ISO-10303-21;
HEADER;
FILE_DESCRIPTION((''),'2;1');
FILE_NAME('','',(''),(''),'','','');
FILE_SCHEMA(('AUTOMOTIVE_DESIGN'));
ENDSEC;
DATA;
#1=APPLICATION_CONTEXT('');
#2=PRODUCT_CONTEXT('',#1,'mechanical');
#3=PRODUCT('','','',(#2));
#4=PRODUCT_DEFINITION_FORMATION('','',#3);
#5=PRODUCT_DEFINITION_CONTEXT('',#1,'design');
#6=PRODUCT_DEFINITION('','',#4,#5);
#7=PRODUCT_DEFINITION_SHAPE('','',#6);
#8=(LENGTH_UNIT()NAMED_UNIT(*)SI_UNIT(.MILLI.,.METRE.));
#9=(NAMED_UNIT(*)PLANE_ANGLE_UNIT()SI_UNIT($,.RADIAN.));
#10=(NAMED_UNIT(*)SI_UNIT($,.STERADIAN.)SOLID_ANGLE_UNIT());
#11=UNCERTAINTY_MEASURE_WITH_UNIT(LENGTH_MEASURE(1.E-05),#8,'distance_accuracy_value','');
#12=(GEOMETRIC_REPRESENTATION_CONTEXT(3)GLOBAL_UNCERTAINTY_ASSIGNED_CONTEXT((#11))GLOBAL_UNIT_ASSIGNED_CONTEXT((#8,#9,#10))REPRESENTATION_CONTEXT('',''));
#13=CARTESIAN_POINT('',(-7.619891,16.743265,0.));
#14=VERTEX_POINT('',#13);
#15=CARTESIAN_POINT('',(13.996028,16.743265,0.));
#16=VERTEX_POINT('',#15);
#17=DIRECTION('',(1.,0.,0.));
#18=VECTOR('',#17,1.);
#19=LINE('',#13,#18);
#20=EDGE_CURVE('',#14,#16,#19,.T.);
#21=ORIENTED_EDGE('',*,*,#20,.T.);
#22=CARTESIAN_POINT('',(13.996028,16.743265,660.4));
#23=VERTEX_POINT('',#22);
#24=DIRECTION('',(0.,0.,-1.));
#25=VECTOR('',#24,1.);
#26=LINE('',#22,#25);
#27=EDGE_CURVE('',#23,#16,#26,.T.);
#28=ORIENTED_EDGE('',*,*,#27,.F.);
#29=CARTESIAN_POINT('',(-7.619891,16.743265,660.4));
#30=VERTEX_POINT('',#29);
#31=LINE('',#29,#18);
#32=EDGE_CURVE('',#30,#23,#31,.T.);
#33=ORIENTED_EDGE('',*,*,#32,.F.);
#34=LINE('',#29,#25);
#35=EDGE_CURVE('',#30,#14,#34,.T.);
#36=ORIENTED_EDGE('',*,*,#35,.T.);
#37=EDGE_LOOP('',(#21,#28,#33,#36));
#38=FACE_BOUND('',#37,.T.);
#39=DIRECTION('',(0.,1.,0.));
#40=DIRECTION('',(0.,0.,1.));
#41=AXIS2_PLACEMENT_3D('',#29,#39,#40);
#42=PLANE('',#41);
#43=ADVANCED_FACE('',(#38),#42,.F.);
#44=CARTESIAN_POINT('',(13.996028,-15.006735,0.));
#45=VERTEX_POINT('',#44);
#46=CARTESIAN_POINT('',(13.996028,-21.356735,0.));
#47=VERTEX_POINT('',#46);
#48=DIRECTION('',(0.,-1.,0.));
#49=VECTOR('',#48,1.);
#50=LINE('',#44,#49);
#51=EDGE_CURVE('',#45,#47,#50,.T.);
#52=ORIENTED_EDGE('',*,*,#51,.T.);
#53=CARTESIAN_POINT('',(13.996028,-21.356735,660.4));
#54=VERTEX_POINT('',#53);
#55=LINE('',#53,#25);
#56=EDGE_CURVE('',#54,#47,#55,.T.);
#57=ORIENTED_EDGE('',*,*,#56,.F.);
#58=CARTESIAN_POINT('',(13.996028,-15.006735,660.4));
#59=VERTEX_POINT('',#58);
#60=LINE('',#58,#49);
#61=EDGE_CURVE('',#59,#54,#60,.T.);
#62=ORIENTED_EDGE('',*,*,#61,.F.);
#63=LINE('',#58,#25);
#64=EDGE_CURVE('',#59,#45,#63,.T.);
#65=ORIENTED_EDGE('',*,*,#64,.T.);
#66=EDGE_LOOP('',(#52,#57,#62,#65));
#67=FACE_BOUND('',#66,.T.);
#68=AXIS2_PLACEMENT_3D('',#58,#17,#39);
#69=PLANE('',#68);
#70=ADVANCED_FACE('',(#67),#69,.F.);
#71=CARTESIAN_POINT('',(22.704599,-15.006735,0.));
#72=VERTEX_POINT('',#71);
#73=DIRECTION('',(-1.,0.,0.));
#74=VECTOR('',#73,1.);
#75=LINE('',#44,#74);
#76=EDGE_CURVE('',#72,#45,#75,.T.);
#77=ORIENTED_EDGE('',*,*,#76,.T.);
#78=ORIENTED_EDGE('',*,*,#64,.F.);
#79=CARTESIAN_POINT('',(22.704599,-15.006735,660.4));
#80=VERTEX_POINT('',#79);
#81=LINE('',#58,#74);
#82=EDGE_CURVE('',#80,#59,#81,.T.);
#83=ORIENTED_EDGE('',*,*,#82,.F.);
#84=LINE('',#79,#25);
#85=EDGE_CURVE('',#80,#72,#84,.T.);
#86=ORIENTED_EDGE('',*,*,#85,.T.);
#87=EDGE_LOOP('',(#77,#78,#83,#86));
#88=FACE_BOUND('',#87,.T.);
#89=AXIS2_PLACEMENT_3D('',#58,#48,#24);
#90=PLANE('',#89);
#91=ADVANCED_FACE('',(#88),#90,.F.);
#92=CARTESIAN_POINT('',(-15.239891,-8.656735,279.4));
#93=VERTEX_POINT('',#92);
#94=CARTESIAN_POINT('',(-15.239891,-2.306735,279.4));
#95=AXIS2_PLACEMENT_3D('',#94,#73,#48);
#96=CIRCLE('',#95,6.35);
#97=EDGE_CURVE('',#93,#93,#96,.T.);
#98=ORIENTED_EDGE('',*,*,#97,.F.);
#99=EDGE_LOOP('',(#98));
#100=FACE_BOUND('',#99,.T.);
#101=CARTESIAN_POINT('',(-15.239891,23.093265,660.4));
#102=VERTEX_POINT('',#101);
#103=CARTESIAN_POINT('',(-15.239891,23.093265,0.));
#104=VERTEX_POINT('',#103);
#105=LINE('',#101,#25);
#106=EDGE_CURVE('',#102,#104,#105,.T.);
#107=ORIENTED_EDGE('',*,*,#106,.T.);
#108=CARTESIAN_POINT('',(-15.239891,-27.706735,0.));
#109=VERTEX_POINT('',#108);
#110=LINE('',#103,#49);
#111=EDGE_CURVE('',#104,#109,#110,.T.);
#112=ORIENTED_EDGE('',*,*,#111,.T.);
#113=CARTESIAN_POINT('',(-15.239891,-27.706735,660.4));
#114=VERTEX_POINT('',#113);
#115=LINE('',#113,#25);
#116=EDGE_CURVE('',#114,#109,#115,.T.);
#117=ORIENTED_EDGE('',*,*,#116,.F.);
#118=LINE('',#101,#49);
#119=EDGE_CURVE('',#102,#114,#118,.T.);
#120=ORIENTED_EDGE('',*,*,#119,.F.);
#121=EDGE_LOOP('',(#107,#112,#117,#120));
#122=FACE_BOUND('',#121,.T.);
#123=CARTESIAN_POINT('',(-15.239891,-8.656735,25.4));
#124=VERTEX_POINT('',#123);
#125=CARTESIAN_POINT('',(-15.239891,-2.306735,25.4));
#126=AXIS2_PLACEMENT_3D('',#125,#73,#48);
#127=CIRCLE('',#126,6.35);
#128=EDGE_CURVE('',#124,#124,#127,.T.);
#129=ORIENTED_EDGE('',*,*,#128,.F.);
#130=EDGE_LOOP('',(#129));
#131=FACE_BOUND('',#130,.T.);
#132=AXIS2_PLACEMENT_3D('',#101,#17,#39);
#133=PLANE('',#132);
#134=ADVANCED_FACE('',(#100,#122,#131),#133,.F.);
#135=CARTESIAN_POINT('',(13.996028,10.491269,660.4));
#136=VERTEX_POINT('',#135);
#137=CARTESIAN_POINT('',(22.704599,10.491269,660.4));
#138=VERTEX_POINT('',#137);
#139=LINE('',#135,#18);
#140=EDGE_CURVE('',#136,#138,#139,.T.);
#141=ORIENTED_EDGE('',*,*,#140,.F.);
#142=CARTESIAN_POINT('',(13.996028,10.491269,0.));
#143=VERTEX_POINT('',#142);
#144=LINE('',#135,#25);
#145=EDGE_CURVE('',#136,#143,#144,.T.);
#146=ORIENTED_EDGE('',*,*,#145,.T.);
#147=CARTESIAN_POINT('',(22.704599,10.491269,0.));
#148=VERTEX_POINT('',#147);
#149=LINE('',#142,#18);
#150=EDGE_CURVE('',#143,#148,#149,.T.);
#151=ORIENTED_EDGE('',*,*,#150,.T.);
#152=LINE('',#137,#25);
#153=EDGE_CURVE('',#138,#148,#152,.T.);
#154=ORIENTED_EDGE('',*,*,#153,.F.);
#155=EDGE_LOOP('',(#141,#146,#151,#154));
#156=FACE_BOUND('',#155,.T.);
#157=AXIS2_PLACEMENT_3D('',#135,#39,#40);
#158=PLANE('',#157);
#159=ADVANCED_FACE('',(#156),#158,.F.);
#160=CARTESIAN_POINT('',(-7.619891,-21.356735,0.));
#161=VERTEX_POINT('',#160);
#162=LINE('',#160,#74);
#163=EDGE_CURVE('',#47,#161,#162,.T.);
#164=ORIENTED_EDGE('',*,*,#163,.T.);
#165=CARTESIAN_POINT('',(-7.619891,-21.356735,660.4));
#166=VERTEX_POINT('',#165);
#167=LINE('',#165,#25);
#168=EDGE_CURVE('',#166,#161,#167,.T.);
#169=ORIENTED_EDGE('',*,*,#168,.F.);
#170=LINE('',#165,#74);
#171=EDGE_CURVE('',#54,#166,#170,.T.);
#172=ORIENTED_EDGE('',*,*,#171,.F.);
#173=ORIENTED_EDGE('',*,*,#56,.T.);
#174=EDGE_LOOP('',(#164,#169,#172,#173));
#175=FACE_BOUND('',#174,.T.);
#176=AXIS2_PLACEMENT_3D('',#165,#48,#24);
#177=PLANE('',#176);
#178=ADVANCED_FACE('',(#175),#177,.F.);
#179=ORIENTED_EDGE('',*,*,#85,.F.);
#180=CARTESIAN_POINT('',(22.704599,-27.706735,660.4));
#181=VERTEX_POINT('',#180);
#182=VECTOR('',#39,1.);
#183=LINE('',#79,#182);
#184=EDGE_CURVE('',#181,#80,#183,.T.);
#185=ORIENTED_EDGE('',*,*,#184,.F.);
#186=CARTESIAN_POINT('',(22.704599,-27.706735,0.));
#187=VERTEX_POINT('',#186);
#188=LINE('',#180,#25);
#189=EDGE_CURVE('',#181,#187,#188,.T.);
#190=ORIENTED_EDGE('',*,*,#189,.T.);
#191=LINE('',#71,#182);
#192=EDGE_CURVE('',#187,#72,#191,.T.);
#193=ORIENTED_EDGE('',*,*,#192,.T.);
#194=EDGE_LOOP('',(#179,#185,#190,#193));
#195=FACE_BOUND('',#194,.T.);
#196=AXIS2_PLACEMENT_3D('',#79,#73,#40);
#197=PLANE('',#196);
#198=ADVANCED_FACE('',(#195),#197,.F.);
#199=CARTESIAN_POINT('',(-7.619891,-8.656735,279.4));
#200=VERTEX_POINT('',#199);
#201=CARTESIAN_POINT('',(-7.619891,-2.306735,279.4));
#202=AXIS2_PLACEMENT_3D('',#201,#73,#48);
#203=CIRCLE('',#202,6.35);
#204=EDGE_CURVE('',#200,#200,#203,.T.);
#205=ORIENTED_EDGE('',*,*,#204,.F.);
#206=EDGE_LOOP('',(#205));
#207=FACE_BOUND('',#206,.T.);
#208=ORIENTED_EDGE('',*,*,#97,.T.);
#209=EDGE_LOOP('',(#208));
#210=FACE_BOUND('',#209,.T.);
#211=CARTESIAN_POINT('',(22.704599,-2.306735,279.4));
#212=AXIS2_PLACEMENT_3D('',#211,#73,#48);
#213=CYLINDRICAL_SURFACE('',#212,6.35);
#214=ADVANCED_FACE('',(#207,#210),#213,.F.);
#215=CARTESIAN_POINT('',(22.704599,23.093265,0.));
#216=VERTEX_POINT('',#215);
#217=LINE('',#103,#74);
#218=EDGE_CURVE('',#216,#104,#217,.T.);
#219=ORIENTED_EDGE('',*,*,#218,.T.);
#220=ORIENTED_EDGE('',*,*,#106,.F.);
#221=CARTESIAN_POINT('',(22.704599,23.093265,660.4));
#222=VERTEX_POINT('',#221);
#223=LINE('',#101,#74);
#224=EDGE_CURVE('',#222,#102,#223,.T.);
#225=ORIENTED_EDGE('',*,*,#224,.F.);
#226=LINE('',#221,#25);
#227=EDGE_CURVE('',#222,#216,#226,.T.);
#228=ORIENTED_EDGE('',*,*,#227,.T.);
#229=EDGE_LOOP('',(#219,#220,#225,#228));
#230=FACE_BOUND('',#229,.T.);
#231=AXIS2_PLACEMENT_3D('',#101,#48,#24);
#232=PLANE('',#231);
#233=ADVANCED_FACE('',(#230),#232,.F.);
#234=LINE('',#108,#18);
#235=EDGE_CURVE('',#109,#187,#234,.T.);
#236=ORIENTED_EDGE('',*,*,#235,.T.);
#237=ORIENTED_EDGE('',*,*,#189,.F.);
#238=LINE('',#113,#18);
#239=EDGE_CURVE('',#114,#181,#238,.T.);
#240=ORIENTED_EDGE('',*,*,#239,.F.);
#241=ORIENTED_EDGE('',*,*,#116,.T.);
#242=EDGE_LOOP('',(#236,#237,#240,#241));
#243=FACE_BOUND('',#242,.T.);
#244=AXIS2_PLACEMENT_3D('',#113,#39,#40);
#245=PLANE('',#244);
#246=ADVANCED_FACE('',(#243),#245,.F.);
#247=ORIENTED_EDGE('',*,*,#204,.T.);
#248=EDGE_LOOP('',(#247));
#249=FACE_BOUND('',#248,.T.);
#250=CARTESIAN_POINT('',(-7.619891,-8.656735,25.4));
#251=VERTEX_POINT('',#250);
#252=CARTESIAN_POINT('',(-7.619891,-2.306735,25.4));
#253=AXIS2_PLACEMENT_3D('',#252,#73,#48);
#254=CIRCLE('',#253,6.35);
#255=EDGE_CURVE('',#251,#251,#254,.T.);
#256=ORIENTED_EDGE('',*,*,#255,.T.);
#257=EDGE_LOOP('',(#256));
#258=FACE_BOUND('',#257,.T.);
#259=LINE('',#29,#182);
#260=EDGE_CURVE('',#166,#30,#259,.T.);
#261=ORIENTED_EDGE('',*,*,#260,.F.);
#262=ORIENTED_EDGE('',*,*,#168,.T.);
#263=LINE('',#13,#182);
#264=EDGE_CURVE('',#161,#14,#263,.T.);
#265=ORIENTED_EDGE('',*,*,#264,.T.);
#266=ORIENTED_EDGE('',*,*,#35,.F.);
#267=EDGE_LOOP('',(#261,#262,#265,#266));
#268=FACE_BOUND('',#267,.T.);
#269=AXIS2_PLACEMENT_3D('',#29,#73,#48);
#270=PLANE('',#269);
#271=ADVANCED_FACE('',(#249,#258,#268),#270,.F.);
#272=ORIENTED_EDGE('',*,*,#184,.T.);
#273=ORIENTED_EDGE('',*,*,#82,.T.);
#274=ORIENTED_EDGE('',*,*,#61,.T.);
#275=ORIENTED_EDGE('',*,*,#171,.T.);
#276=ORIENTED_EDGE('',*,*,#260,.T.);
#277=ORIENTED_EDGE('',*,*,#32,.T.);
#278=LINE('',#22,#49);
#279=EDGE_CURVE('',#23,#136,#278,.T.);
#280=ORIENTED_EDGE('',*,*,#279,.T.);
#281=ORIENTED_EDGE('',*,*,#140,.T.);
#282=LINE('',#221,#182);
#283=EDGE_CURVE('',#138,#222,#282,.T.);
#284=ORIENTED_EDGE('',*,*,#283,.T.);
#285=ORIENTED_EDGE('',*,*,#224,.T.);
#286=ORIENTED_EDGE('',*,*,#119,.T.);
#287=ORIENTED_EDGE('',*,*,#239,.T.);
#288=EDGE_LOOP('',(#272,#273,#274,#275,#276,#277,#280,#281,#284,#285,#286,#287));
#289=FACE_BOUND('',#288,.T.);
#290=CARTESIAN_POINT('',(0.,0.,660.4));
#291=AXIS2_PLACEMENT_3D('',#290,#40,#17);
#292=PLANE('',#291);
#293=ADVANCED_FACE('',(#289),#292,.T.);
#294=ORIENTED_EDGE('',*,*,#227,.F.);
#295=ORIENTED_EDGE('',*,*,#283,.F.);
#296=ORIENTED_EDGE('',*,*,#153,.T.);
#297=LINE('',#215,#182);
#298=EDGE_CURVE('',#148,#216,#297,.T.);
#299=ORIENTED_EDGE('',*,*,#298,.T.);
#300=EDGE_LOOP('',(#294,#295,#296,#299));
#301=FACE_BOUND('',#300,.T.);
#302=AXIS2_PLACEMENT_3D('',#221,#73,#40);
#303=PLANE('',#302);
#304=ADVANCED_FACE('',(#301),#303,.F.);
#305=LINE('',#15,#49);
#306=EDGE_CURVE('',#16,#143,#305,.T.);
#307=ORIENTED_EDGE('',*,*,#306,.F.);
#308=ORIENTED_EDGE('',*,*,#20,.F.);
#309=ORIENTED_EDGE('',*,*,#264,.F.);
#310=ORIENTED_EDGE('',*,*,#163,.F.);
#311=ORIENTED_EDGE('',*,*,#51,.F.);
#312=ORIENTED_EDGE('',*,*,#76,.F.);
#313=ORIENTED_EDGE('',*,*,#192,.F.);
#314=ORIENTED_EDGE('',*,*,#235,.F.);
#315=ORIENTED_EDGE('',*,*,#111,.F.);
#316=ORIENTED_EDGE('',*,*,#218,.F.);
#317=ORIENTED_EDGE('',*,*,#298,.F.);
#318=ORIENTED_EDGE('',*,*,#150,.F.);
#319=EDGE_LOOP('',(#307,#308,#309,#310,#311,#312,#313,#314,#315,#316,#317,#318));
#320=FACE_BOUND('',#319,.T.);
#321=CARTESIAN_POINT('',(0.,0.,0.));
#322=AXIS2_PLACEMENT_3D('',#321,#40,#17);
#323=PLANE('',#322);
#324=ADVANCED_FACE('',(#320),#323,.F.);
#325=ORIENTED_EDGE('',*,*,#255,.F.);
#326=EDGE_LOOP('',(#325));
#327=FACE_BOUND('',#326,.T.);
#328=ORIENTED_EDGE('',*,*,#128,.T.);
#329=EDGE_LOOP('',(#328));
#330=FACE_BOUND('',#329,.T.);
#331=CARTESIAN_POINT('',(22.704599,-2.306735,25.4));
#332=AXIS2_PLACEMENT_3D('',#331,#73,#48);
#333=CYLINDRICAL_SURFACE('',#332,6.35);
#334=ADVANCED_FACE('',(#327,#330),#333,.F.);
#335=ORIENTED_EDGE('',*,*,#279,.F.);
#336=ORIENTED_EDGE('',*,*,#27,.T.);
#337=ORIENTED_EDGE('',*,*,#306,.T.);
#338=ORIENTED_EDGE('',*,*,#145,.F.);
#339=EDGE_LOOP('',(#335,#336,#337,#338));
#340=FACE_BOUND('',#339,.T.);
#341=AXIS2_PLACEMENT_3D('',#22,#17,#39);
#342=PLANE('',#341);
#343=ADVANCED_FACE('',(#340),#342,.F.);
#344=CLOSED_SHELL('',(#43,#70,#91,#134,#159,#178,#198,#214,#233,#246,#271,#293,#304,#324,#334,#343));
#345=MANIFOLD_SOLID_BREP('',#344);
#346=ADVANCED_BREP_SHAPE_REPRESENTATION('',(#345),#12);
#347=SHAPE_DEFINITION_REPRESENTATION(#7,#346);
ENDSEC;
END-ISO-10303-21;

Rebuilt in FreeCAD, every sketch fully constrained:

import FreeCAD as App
import Part
import Sketcher
from FreeCAD import Vector
Q = App.Units.Quantity


def add_polygon(sketch, points):
    """Adds a closed chain of lines whose ends are joined by coincident constraints."""
    first, n = sketch.GeometryCount, len(points)
    for a, b in zip(points, points[1:] + points[:1]):
        sketch.addGeometry(Part.LineSegment(App.Vector(*a, 0), App.Vector(*b, 0)), False)
    for i in range(n):
        sketch.addConstraint(Sketcher.Constraint("Coincident", first + i, 2, first + (i + 1) % n, 1))

doc = App.newDocument("Part")
body = doc.addObject("PartDesign::Body", "Body")

sketch1 = doc.addObject("Sketcher::SketchObject", "Sketch")
body.addObject(sketch1)
sketch1.AttachmentSupport = (doc.XY_Plane, [""])
sketch1.MapMode = "FlatFace"
add_polygon(sketch1, [(14, 10), (23, 10), (23, 23), (-15, 23), (-15, -28), (23, -28), (23, -15), (14, -15), (14, -21), (-8, -21), (-8, 17), (14, 17)])
sketch1.addConstraint([
    Sketcher.Constraint("Horizontal", 0),
    Sketcher.Constraint("Vertical", 1),
    Sketcher.Constraint("Horizontal", 2),
    Sketcher.Constraint("Vertical", 3),
    Sketcher.Constraint("Horizontal", 4),
    Sketcher.Constraint("Vertical", 5),
    Sketcher.Constraint("Horizontal", 6),
    Sketcher.Constraint("Vertical", 7),
    Sketcher.Constraint("Horizontal", 8),
    Sketcher.Constraint("Vertical", 9),
    Sketcher.Constraint("Horizontal", 10),
    Sketcher.Constraint("Vertical", 11),
    Sketcher.Constraint("Vertical", 1, 2, 4, 2),
    Sketcher.Constraint("Vertical", 7, 2, 10, 2),
    Sketcher.Constraint("DistanceY", 3, 2, 3, 1, Q("2 in")),
    Sketcher.Constraint("DistanceY", 5, 1, 5, 2, Q("0.5 in")),
    Sketcher.Constraint("DistanceY", 9, 1, 9, 2, Q("1.5 in")),
    Sketcher.Constraint("DistanceY", 7, 2, 7, 1, Q("0.25 in")),
    Sketcher.Constraint("DistanceX", 3, 2, 8, 2, Q("0.3 in")),
    Sketcher.Constraint("DistanceX", 0, 1, 0, 2, 8.708571),
    Sketcher.Constraint("DistanceX", 2, 2, 2, 1, 37.94449),
    Sketcher.Constraint("DistanceX", -1, 1, 0, 2, 22.704599),
    Sketcher.Constraint("DistanceY", 1, 1, 1, 2, 12.601997),
    Sketcher.Constraint("DistanceY", -1, 1, 0, 2, 10.491269),
])
pad1 = doc.addObject("PartDesign::Pad", "Pad")
body.addObject(pad1)
pad1.Profile = sketch1
pad1.Length = Q("26 in")

sketch2 = doc.addObject("Sketcher::SketchObject", "Sketch001")
body.addObject(sketch2)
sketch2.AttachmentSupport = (doc.YZ_Plane, [""])
sketch2.MapMode = "FlatFace"
sketch2.AttachmentOffset = App.Placement(Vector(0, 0, -15.239891), App.Rotation())
sketch2.addGeometry([
    Part.Circle(Vector(-2, 25, 0), Vector(0, 0, 1), 6),
    Part.Circle(Vector(-2, 279, 0), Vector(0, 0, 1), 6),
], False)
sketch2.addConstraint([
    Sketcher.Constraint("Equal", 0, 1),
    Sketcher.Constraint("Vertical", 0, 3, 1, 3),
    Sketcher.Constraint("Diameter", 0, Q("0.5 in")),
    Sketcher.Constraint("DistanceY", -1, 1, 0, 3, Q("1 in")),
    Sketcher.Constraint("DistanceY", -1, 1, 1, 3, Q("11 in")),
    Sketcher.Constraint("DistanceX", 0, 3, -1, 1, 2.306735),
])
pocket1 = doc.addObject("PartDesign::Pocket", "Pocket")
body.addObject(pocket1)
pocket1.Profile = sketch2
pocket1.Type = "ThroughAll"
pocket1.Reversed = True

doc.recompute()
